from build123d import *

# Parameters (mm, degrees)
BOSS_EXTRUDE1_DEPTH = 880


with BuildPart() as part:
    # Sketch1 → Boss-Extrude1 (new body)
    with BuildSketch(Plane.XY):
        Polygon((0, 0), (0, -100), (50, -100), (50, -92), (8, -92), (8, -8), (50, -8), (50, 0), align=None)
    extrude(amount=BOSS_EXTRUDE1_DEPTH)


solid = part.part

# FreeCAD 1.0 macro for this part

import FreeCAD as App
import Part
import Sketcher
from FreeCAD import Vector
Q = App.Units.Quantity

doc = App.newDocument("Part")
body = doc.addObject("PartDesign::Body", "Body")

# Sketch on XY plane
sketch1 = doc.addObject("Sketcher::SketchObject", "Sketch")
body.addObject(sketch1)
sketch1.AttachmentSupport = (doc.XY_Plane, [""])
sketch1.MapMode = "FlatFace"
sketch1.addGeometry(Part.LineSegment(Vector(0, 0, 0), Vector(0, -100, 0)), False)
sketch1.addGeometry(Part.LineSegment(Vector(0, -100, 0), Vector(50, -100, 0)), False)
sketch1.addGeometry(Part.LineSegment(Vector(50, -100, 0), Vector(50, -92, 0)), False)
sketch1.addGeometry(Part.LineSegment(Vector(50, -92, 0), Vector(8, -92, 0)), False)
sketch1.addGeometry(Part.LineSegment(Vector(8, -92, 0), Vector(8, -8, 0)), False)
sketch1.addGeometry(Part.LineSegment(Vector(8, -8, 0), Vector(50, -8, 0)), False)
sketch1.addGeometry(Part.LineSegment(Vector(50, -8, 0), Vector(50, 0, 0)), False)
sketch1.addGeometry(Part.LineSegment(Vector(50, 0, 0), Vector(0, 0, 0)), False)
sketch1.addConstraint(Sketcher.Constraint("Coincident", 0, 2, 1, 1))
sketch1.addConstraint(Sketcher.Constraint("Coincident", 1, 2, 2, 1))
sketch1.addConstraint(Sketcher.Constraint("Coincident", 2, 2, 3, 1))
sketch1.addConstraint(Sketcher.Constraint("Coincident", 3, 2, 4, 1))
sketch1.addConstraint(Sketcher.Constraint("Coincident", 4, 2, 5, 1))
sketch1.addConstraint(Sketcher.Constraint("Coincident", 5, 2, 6, 1))
sketch1.addConstraint(Sketcher.Constraint("Coincident", 6, 2, 7, 1))
sketch1.addConstraint(Sketcher.Constraint("Coincident", 7, 2, 0, 1))
sketch1.addConstraint(Sketcher.Constraint("Vertical", 0))
sketch1.addConstraint(Sketcher.Constraint("Horizontal", 1))
sketch1.addConstraint(Sketcher.Constraint("Vertical", 2))
sketch1.addConstraint(Sketcher.Constraint("Horizontal", 3))
sketch1.addConstraint(Sketcher.Constraint("Vertical", 4))
sketch1.addConstraint(Sketcher.Constraint("Horizontal", 5))
sketch1.addConstraint(Sketcher.Constraint("Vertical", 6))
sketch1.addConstraint(Sketcher.Constraint("Horizontal", 7))
sketch1.addConstraint(Sketcher.Constraint("Coincident", 7, 2, -1, 1))
sketch1.addConstraint(Sketcher.Constraint("Vertical", 2, 2, 5, 2))
sketch1.addConstraint(Sketcher.Constraint("Equal", 2, 6))
sketch1.addConstraint(Sketcher.Constraint("DistanceX", 1, 1, 1, 2, Q("50 mm")))
sketch1.addConstraint(Sketcher.Constraint("DistanceX", 3, 2, 3, 1, Q("42 mm")))
sketch1.addConstraint(Sketcher.Constraint("DistanceY", 0, 2, 0, 1, Q("100 mm")))
sketch1.addConstraint(Sketcher.Constraint("DistanceY", 2, 1, 2, 2, Q("8 mm")))
pad1 = doc.addObject("PartDesign::Pad", "Pad")
body.addObject(pad1)
pad1.Profile = sketch1
pad1.Length = 880

doc.recompute()
